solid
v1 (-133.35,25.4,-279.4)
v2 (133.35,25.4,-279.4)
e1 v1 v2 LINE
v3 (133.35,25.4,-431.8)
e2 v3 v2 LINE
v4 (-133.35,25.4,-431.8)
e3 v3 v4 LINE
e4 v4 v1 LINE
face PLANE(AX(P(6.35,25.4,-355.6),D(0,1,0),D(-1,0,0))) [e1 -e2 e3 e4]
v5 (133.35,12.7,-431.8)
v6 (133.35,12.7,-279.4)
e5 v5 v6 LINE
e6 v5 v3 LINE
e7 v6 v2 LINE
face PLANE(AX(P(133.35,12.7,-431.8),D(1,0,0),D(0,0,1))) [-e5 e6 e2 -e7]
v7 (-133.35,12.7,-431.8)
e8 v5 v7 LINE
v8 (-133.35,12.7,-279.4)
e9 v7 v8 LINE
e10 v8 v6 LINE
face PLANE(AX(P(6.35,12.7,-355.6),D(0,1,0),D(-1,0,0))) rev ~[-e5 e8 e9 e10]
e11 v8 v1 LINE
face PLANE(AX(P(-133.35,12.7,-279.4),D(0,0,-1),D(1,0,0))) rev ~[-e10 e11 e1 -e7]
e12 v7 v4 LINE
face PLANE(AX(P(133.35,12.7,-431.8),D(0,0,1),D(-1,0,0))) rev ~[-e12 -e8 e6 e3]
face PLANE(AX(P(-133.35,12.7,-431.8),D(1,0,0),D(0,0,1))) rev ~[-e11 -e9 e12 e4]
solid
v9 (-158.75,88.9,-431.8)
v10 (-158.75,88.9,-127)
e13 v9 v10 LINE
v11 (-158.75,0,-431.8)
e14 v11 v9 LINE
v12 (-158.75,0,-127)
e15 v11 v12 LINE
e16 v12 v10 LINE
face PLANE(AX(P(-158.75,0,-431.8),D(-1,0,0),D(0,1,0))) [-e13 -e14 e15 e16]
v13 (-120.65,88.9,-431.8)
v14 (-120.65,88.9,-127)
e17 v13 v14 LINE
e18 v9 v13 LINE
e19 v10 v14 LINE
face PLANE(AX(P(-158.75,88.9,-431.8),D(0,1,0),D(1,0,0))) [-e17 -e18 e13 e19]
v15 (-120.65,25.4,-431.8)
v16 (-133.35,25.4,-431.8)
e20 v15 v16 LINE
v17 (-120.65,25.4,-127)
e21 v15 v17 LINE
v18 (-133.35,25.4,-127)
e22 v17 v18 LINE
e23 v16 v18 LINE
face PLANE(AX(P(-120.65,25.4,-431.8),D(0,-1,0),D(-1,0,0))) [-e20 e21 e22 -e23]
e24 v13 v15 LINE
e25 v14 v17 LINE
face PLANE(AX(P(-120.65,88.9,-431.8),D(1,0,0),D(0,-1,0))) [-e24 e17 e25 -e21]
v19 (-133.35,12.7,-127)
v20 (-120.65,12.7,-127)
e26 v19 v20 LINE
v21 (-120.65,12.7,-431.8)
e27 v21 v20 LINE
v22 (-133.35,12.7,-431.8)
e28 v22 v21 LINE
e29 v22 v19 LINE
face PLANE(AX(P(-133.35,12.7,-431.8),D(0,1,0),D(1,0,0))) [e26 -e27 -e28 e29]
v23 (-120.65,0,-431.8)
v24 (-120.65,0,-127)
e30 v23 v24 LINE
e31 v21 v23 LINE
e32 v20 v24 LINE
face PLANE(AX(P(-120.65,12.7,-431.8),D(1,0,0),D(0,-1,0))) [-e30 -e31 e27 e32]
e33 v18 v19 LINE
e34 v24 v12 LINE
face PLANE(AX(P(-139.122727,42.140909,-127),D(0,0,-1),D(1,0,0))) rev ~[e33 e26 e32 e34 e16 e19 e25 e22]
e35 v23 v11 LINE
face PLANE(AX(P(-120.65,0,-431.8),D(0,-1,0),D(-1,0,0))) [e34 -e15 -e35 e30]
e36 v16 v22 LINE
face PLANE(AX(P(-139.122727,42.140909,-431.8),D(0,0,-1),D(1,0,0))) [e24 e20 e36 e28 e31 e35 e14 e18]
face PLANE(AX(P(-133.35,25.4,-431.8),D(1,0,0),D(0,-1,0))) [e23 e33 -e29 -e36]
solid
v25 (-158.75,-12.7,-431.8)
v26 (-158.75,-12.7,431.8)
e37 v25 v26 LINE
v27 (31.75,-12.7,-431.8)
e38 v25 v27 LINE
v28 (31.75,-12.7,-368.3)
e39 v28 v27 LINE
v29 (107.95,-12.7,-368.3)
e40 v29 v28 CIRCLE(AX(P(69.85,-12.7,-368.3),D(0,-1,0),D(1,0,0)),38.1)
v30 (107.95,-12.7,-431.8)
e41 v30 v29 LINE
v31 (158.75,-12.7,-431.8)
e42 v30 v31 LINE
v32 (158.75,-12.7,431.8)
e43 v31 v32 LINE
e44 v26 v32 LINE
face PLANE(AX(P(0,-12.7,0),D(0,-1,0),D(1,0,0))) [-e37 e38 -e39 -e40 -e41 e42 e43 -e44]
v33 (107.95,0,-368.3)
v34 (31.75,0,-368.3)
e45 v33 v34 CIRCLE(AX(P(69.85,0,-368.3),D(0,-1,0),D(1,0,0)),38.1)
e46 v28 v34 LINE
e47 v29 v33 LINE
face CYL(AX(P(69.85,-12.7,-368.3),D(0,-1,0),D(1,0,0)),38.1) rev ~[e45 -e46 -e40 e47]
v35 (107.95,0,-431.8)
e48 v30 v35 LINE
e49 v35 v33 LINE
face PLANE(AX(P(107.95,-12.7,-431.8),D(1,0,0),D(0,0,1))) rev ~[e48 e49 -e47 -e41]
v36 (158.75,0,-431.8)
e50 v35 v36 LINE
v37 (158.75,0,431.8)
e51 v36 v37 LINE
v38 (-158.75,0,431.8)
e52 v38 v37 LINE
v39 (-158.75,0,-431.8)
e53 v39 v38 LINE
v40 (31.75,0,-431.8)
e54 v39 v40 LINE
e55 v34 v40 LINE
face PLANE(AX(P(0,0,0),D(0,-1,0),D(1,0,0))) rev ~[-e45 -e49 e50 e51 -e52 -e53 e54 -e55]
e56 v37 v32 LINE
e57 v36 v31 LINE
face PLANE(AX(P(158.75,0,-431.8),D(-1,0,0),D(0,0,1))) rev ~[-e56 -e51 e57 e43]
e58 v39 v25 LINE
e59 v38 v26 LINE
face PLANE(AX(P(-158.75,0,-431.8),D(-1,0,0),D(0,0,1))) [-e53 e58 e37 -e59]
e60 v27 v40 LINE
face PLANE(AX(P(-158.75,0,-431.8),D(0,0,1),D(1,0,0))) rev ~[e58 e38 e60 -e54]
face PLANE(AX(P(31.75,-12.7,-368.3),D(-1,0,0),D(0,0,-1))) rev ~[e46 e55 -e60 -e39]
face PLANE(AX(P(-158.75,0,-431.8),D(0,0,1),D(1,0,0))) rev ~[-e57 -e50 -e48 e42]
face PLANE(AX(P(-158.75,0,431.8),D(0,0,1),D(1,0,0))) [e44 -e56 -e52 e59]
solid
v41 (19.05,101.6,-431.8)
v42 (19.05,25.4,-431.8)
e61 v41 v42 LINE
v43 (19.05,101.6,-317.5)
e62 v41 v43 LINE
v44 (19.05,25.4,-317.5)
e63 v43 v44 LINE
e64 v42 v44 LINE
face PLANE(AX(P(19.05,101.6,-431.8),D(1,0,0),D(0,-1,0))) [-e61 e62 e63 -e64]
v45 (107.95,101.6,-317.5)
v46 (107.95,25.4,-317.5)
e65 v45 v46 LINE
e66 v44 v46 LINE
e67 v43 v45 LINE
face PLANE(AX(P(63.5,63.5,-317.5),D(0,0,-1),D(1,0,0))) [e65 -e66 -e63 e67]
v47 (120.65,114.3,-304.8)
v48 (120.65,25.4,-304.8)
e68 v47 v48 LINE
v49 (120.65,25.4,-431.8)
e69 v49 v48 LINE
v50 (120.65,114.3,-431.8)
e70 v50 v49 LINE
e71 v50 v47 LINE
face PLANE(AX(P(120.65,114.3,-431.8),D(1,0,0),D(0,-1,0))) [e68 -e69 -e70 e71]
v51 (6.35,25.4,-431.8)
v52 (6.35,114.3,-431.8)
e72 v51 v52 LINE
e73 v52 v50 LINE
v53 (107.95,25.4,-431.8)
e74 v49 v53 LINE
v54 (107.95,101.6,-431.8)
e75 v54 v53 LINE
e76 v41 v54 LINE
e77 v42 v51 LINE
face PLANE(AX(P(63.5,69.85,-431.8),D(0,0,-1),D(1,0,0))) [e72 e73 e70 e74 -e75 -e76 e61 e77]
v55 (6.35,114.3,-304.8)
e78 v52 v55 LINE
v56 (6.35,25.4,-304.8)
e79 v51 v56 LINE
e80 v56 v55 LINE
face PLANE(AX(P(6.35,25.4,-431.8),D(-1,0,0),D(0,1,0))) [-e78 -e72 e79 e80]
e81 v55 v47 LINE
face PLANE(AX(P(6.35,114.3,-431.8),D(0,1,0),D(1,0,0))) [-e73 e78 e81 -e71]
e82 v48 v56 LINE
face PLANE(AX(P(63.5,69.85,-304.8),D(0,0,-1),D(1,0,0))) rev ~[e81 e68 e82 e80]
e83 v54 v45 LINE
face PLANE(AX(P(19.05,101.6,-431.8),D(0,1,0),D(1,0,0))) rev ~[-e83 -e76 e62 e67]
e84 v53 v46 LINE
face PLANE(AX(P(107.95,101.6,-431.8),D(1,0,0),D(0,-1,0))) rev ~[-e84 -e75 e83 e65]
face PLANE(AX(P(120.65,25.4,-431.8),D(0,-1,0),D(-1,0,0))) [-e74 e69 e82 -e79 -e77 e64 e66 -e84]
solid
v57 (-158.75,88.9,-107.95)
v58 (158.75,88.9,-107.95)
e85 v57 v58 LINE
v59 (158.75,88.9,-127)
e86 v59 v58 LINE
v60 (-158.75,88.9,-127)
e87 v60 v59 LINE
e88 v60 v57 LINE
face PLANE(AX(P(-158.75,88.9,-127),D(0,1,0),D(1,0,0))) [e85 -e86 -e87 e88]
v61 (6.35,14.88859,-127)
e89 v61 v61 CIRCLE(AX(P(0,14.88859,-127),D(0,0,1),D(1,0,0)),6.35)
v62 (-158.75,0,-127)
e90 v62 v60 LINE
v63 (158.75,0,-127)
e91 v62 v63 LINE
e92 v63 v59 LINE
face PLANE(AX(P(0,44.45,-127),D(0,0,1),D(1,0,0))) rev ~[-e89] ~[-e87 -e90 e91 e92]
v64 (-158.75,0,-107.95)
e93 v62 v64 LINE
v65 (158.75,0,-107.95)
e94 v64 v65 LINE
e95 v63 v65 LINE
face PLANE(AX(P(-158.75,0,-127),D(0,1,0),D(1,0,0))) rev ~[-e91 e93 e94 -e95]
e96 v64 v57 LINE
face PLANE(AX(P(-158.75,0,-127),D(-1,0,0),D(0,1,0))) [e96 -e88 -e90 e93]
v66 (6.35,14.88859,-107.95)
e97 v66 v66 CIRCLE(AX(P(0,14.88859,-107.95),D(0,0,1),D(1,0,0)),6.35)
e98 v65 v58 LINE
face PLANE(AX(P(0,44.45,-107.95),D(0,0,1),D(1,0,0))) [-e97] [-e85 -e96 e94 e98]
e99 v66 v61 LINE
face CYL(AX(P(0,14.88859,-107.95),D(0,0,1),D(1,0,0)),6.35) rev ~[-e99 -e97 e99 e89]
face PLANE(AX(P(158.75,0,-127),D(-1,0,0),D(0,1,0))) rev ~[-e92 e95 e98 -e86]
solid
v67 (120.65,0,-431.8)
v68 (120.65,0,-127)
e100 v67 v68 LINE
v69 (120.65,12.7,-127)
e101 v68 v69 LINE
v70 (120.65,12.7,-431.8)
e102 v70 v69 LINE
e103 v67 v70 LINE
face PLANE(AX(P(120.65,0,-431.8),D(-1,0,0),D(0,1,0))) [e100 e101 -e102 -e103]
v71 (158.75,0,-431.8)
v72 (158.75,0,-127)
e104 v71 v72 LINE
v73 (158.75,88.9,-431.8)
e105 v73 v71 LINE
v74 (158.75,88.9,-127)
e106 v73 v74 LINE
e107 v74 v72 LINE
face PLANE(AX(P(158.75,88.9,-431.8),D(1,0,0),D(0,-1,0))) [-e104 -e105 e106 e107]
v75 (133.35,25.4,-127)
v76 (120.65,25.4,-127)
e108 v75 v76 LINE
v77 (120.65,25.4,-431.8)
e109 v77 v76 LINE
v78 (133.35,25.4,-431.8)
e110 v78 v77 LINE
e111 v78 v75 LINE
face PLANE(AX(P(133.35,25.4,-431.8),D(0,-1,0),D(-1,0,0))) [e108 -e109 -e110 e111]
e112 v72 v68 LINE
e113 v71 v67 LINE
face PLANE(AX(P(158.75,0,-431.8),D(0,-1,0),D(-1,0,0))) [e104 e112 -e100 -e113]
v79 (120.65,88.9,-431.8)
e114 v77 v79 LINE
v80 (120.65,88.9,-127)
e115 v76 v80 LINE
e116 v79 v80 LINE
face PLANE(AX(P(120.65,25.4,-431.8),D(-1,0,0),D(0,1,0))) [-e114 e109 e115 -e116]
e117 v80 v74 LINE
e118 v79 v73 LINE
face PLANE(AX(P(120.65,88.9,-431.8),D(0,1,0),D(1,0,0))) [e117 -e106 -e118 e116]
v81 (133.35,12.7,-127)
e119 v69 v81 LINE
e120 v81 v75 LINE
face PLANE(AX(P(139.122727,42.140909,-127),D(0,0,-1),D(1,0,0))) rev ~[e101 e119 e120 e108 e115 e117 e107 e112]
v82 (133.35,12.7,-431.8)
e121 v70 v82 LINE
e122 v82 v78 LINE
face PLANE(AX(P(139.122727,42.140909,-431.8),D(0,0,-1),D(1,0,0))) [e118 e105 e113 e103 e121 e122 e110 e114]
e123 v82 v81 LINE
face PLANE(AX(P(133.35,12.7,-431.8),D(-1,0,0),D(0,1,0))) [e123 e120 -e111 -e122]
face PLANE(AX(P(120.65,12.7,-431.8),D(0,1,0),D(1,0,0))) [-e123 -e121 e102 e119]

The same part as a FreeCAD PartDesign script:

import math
import FreeCAD as App
import Part
import Sketcher
from FreeCAD import Vector
Q = App.Units.Quantity


def add_polygon(sketch, points):
    """Adds a closed chain of lines whose ends are joined by coincident constraints."""
    first, n = sketch.GeometryCount, len(points)
    for a, b in zip(points, points[1:] + points[:1]):
        sketch.addGeometry(Part.LineSegment(App.Vector(*a, 0), App.Vector(*b, 0)), False)
    for i in range(n):
        sketch.addConstraint(Sketcher.Constraint("Coincident", first + i, 2, first + (i + 1) % n, 1))

doc = App.newDocument("Part")
body = doc.addObject("PartDesign::Body", "Body")

# Sketch on XZ plane
sketch1 = doc.addObject("Sketcher::SketchObject", "Sketch")
body.addObject(sketch1)
sketch1.AttachmentSupport = (doc.XZ_Plane, [""])
sketch1.MapMode = "FlatFace"
add_polygon(sketch1, [(-158.75, 431.8), (-158.75, -431.8), (158.75, -431.8), (158.75, 431.8)])  # lines 0-3
sketch1.addConstraint([
    Sketcher.Constraint("Vertical", 0),
    Sketcher.Constraint("Horizontal", 1),
    Sketcher.Constraint("Vertical", 2),
    Sketcher.Constraint("Horizontal", 3),
    Sketcher.Constraint("Symmetric", 0, 2, 2, 2, -1, 1),
    Sketcher.Constraint("DistanceY", 0, 2, 0, 1, Q("34 in")),
    Sketcher.Constraint("DistanceX", 1, 1, 1, 2, Q("12.5 in")),
])
pad1 = doc.addObject("PartDesign::Pad", "Pad")
body.addObject(pad1)
pad1.Profile = sketch1
pad1.Length = Q("0.5 in")

# Sketch on XZ plane
sketch2 = doc.addObject("Sketcher::SketchObject", "Sketch001")
body.addObject(sketch2)
sketch2.AttachmentSupport = (doc.XZ_Plane, [""])
sketch2.MapMode = "FlatFace"
sketch2.AttachmentOffset = App.Placement(Vector(0, 0, 0.5 * 25.4), App.Rotation())
sketch2.addGeometry([
    Part.LineSegment(Vector(31.75, -368.3, 0), Vector(31.75, -431.8, 0)),
    Part.LineSegment(Vector(31.75, -431.8, 0), Vector(107.95, -431.8, 0)),
    Part.LineSegment(Vector(107.95, -431.8, 0), Vector(107.95, -368.3, 0)),
    Part.ArcOfCircle(Part.Circle(Vector(69.85, -368.3, 0), Vector(0, 0, 1), 38.1), math.radians(0), math.radians(180)),
], False)
sketch2.addConstraint([
    Sketcher.Constraint("Coincident", 0, 2, 1, 1),
    Sketcher.Constraint("Coincident", 1, 2, 2, 1),
    Sketcher.Constraint("Tangent", 2, 2, 3, 1),
    Sketcher.Constraint("Tangent", 3, 2, 0, 1),
    Sketcher.Constraint("Vertical", 0),
    Sketcher.Constraint("Horizontal", 1),
    Sketcher.Constraint("Vertical", 2),
    Sketcher.Constraint("Radius", 3, Q("1.5 in")),
    Sketcher.Constraint("DistanceY", 0, 2, 0, 1, Q("2.5 in")),
    Sketcher.Constraint("DistanceY", 0, 2, -1, 1, Q("17 in")),
    Sketcher.Constraint("DistanceX", -1, 1, 3, 3, Q("2.75 in")),
])
pocket1 = doc.addObject("PartDesign::Pocket", "Pocket")
body.addObject(pocket1)
pocket1.Profile = sketch2
pocket1.Length = Q("0.5 in")
body2 = doc.addObject("PartDesign::Body", "Body001")

# Sketch on XY plane
sketch3 = doc.addObject("Sketcher::SketchObject", "Sketch002")
body2.addObject(sketch3)
sketch3.AttachmentSupport = (doc.getObject("XY_Plane001"), [""])
sketch3.MapMode = "FlatFace"
sketch3.AttachmentOffset = App.Placement(Vector(0, 0, -17 * 25.4), App.Rotation())
add_polygon(sketch3, [(-120.65, 0), (-158.75, 0), (-158.75, 88.9), (-120.65, 88.9), (-120.65, 25.4), (-133.35, 25.4), (-133.35, 12.7), (-120.65, 12.7)])  # lines 0-7
sketch3.addConstraint([
    Sketcher.Constraint("Horizontal", 0),
    Sketcher.Constraint("Vertical", 1),
    Sketcher.Constraint("Horizontal", 2),
    Sketcher.Constraint("Vertical", 3),
    Sketcher.Constraint("Horizontal", 4),
    Sketcher.Constraint("Vertical", 5),
    Sketcher.Constraint("Horizontal", 6),
    Sketcher.Constraint("Vertical", 7),
    Sketcher.Constraint("PointOnObject", 0, 2, -1),
    Sketcher.Constraint("Vertical", 3, 2, 6, 2),
    Sketcher.Constraint("Equal", 6, 5),
    Sketcher.Constraint("Equal", 5, 7),
    Sketcher.Constraint("DistanceX", 0, 2, 0, 1, Q("1.5 in")),
    Sketcher.Constraint("DistanceX", 4, 2, 4, 1, Q("0.5 in")),
    Sketcher.Constraint("DistanceY", 1, 1, 1, 2, Q("3.5 in")),
    Sketcher.Constraint("DistanceX", 0, 2, -1, 1, Q("6.25 in")),
])
pad2 = doc.addObject("PartDesign::Pad", "Pad001")
body2.addObject(pad2)
pad2.Profile = sketch3
pad2.Length = Q("12 in")
body3 = doc.addObject("PartDesign::Body", "Body002")

# Sketch on XY plane
sketch4 = doc.addObject("Sketcher::SketchObject", "Sketch003")
body3.addObject(sketch4)
sketch4.AttachmentSupport = (doc.getObject("XY_Plane002"), [""])
sketch4.MapMode = "FlatFace"
sketch4.AttachmentOffset = App.Placement(Vector(0, 0, -17 * 25.4), App.Rotation())
add_polygon(sketch4, [(133.35, 25.4), (120.65, 25.4), (120.65, 88.9), (158.75, 88.9), (158.75, 0), (120.65, 0), (120.65, 12.7), (133.35, 12.7)])  # lines 0-7
sketch4.addConstraint([
    Sketcher.Constraint("Horizontal", 0),
    Sketcher.Constraint("Vertical", 1),
    Sketcher.Constraint("Horizontal", 2),
    Sketcher.Constraint("Vertical", 3),
    Sketcher.Constraint("Horizontal", 4),
    Sketcher.Constraint("Vertical", 5),
    Sketcher.Constraint("Horizontal", 6),
    Sketcher.Constraint("Vertical", 7),
    Sketcher.Constraint("PointOnObject", 3, 2, -1),
    Sketcher.Constraint("Vertical", 1, 2, 4, 2),
    Sketcher.Constraint("Equal", 6, 5),
    Sketcher.Constraint("Equal", 5, 7),
    Sketcher.Constraint("DistanceX", 0, 2, 0, 1, Q("0.5 in")),
    Sketcher.Constraint("DistanceX", 2, 1, 2, 2, Q("1.5 in")),
    Sketcher.Constraint("DistanceY", 1, 1, 1, 2, Q("2.5 in")),
    Sketcher.Constraint("DistanceX", -1, 1, 0, 2, Q("4.75 in")),
])
pad3 = doc.addObject("PartDesign::Pad", "Pad002")
body3.addObject(pad3)
pad3.Profile = sketch4
pad3.Length = Q("12 in")
body4 = doc.addObject("PartDesign::Body", "Body003")

# Sketch on XZ plane
sketch5 = doc.addObject("Sketcher::SketchObject", "Sketch004")
body4.addObject(sketch5)
sketch5.AttachmentSupport = (doc.getObject("XZ_Plane003"), [""])
sketch5.MapMode = "FlatFace"
sketch5.AttachmentOffset = App.Placement(Vector(0, 0, -0.5 * 25.4), App.Rotation())
add_polygon(sketch5, [(133.35, -279.4), (133.35, -431.8), (-133.35, -431.8), (-133.35, -279.4)])  # lines 0-3
sketch5.addConstraint([
    Sketcher.Constraint("Vertical", 0),
    Sketcher.Constraint("Horizontal", 1),
    Sketcher.Constraint("Vertical", 2),
    Sketcher.Constraint("Horizontal", 3),
    Sketcher.Constraint("DistanceY", 0, 2, 0, 1, Q("6 in")),
    Sketcher.Constraint("DistanceX", 1, 2, 1, 1, Q("10.5 in")),
    Sketcher.Constraint("DistanceY", 0, 2, -1, 1, Q("17 in")),
    Sketcher.Constraint("DistanceX", -1, 1, 0, 2, Q("5.25 in")),
])
pad4 = doc.addObject("PartDesign::Pad", "Pad003")
body4.addObject(pad4)
pad4.Profile = sketch5
pad4.Length = Q("0.5 in")
pad4.Reversed = True
body5 = doc.addObject("PartDesign::Body", "Body004")

# Sketch on XY plane
sketch6 = doc.addObject("Sketcher::SketchObject", "Sketch005")
body5.addObject(sketch6)
sketch6.AttachmentSupport = (doc.getObject("XY_Plane004"), [""])
sketch6.MapMode = "FlatFace"
sketch6.AttachmentOffset = App.Placement(Vector(0, 0, -5 * 25.4), App.Rotation())
add_polygon(sketch6, [(-158.75, 88.9), (-158.75, 0), (158.75, 0), (158.75, 88.9)])  # lines 0-3
sketch6.addConstraint([
    Sketcher.Constraint("Vertical", 0),
    Sketcher.Constraint("Horizontal", 1),
    Sketcher.Constraint("Vertical", 2),
    Sketcher.Constraint("Horizontal", 3),
    Sketcher.Constraint("Symmetric", 0, 2, 1, 2, -1, 1),
    Sketcher.Constraint("DistanceX", 1, 1, 1, 2, Q("12.5 in")),
    Sketcher.Constraint("DistanceY", 0, 2, 0, 1, Q("3.5 in")),
])
pad5 = doc.addObject("PartDesign::Pad", "Pad004")
body5.addObject(pad5)
pad5.Profile = sketch6
pad5.Length = Q("0.75 in")

# Sketch on XY plane
sketch7 = doc.addObject("Sketcher::SketchObject", "Sketch006")
body5.addObject(sketch7)
sketch7.AttachmentSupport = (doc.getObject("XY_Plane004"), [""])
sketch7.MapMode = "FlatFace"
sketch7.AttachmentOffset = App.Placement(Vector(0, 0, -4.25 * 25.4), App.Rotation())
sketch7.addGeometry(Part.Circle(Vector(0, 14.88859, 0), Vector(0, 0, 1), 6.35), False)
sketch7.addConstraint([
    Sketcher.Constraint("PointOnObject", 0, 3, -2),
    Sketcher.Constraint("Diameter", 0, Q("0.5 in")),
    Sketcher.Constraint("DistanceY", -1, 1, 0, 3, 14.88859),
])
pocket2 = doc.addObject("PartDesign::Pocket", "Pocket001")
body5.addObject(pocket2)
pocket2.Profile = sketch7
pocket2.Length = Q("1 in")
body6 = doc.addObject("PartDesign::Body", "Body005")

# Sketch on XY plane
sketch8 = doc.addObject("Sketcher::SketchObject", "Sketch007")
body6.addObject(sketch8)
sketch8.AttachmentSupport = (doc.getObject("XY_Plane005"), [""])
sketch8.MapMode = "FlatFace"
sketch8.AttachmentOffset = App.Placement(Vector(0, 0, -17 * 25.4), App.Rotation())
add_polygon(sketch8, [(120.65, 25.4), (6.35, 25.4), (6.35, 114.3), (120.65, 114.3)])  # lines 0-3
sketch8.addConstraint([
    Sketcher.Constraint("Horizontal", 0),
    Sketcher.Constraint("Vertical", 1),
    Sketcher.Constraint("Horizontal", 2),
    Sketcher.Constraint("Vertical", 3),
    Sketcher.Constraint("DistanceX", 0, 2, 0, 1, Q("4.5 in")),
    Sketcher.Constraint("DistanceY", 1, 1, 1, 2, Q("3.5 in")),
    Sketcher.Constraint("DistanceY", -1, 1, 0, 2, Q("1 in")),
    Sketcher.Constraint("DistanceX", -1, 1, 0, 2, Q("0.25 in")),
])
pad6 = doc.addObject("PartDesign::Pad", "Pad005")
body6.addObject(pad6)
pad6.Profile = sketch8
pad6.Length = Q("5 in")

# Sketch on XY plane
sketch9 = doc.addObject("Sketcher::SketchObject", "Sketch008")
body6.addObject(sketch9)
sketch9.AttachmentSupport = (doc.getObject("XY_Plane005"), [""])
sketch9.MapMode = "FlatFace"
sketch9.AttachmentOffset = App.Placement(Vector(0, 0, -17 * 25.4), App.Rotation())
add_polygon(sketch9, [(19.05, 25.4), (19.05, 101.6), (107.95, 101.6), (107.95, 25.4)])  # lines 0-3
sketch9.addConstraint([
    Sketcher.Constraint("Vertical", 0),
    Sketcher.Constraint("Horizontal", 1),
    Sketcher.Constraint("Vertical", 2),
    Sketcher.Constraint("Horizontal", 3),
    Sketcher.Constraint("DistanceY", 0, 1, 0, 2, Q("3 in")),
    Sketcher.Constraint("DistanceX", 1, 1, 1, 2, Q("3.5 in")),
    Sketcher.Constraint("DistanceY", -1, 1, 0, 2, Q("4 in")),
    Sketcher.Constraint("DistanceX", -1, 1, 0, 2, Q("0.75 in")),
])
pocket3 = doc.addObject("PartDesign::Pocket", "Pocket002")
body6.addObject(pocket3)
pocket3.Profile = sketch9
pocket3.Length = Q("4.5 in")
pocket3.Reversed = True

doc.recompute()
